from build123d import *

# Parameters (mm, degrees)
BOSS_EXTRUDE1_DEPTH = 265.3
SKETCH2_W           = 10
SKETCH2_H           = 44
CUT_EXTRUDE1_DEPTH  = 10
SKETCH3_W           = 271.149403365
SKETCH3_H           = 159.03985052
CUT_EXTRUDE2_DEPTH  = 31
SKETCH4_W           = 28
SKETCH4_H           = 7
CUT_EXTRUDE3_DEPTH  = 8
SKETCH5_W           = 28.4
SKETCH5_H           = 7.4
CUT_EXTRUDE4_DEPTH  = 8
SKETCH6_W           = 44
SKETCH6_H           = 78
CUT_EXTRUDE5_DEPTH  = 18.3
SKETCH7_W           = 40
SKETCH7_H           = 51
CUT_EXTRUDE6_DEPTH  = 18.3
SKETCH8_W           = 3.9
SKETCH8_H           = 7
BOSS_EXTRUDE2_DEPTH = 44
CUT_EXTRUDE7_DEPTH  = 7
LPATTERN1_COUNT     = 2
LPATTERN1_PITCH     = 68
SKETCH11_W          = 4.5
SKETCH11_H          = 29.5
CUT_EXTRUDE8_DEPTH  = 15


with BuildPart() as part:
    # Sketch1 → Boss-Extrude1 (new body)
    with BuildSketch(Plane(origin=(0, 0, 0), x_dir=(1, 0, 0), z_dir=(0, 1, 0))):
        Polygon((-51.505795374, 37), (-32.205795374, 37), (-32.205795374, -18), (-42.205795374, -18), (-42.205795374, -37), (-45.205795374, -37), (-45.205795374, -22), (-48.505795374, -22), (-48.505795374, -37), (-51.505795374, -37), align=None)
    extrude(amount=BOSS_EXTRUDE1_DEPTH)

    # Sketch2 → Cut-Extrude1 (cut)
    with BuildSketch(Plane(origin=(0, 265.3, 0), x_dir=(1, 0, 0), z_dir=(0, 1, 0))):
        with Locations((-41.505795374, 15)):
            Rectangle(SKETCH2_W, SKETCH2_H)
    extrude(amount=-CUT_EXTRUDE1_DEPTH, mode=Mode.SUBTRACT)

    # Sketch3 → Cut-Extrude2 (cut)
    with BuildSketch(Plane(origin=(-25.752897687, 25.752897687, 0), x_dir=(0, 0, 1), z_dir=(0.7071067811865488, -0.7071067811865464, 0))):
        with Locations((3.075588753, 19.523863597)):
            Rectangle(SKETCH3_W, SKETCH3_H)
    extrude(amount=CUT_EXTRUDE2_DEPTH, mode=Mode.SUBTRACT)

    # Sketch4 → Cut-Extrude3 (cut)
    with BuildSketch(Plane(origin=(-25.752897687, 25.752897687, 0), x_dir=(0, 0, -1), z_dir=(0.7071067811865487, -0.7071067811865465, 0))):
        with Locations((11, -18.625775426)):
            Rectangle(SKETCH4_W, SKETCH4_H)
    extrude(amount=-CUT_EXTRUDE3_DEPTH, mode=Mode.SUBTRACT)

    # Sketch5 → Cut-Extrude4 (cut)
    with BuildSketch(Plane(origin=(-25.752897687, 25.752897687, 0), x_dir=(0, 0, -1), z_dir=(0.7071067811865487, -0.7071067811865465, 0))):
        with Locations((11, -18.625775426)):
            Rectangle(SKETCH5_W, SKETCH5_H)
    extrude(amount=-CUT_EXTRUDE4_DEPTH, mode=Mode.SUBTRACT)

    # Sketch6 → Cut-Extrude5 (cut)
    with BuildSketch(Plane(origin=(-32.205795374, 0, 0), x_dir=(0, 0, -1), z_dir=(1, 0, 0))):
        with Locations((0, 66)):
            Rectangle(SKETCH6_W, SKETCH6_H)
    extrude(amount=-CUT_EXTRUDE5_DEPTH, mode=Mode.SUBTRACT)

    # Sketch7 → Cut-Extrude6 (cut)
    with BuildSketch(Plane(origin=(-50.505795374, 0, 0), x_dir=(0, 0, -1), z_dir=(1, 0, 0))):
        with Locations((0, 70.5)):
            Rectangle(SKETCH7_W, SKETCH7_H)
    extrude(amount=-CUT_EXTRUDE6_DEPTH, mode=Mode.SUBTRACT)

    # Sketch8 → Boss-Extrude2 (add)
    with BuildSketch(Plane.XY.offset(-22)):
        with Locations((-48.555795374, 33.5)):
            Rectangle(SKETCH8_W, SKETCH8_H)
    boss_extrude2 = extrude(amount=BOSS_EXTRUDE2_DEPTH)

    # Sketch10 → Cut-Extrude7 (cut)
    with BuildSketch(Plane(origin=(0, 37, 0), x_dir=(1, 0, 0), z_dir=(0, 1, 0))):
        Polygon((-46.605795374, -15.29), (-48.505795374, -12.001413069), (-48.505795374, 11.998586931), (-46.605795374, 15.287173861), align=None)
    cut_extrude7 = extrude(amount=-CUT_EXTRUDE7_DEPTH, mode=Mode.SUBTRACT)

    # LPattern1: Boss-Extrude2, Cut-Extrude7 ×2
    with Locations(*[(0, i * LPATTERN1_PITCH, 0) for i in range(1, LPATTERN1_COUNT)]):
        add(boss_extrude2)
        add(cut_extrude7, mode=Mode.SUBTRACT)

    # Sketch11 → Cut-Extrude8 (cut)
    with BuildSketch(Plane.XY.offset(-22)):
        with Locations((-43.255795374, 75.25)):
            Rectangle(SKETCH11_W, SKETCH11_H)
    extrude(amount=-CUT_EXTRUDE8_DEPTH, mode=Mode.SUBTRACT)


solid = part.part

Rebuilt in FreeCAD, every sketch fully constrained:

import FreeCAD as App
import Part
import Sketcher

V = App.Vector

doc = App.newDocument("Part")
body = doc.addObject("PartDesign::Body", "Body")

# Sketch on XZ plane
sketch1 = body.newObject("Sketcher::SketchObject", "Sketch")
sketch1.AttachmentSupport = (doc.getObject("XZ_Plane"), [""])
sketch1.MapMode = "FlatFace"
sketch1.addGeometry([
    Part.LineSegment(V(-32.2, -37, 0), V(-51.5, -37, 0)),  # 0
    Part.LineSegment(V(-51.5, -37, 0), V(-51.5, 37, 0)),  # 1
    Part.LineSegment(V(-51.5, 37, 0), V(-48.5, 37, 0)),  # 2
    Part.LineSegment(V(-48.5, 37, 0), V(-48.5, 22, 0)),  # 3
    Part.LineSegment(V(-48.5, 22, 0), V(-45.2, 22, 0)),  # 4
    Part.LineSegment(V(-45.2, 22, 0), V(-45.2, 37, 0)),  # 5
    Part.LineSegment(V(-45.2, 37, 0), V(-42.2, 37, 0)),  # 6
    Part.LineSegment(V(-42.2, 37, 0), V(-42.2, 18, 0)),  # 7
    Part.LineSegment(V(-42.2, 18, 0), V(-32.2, 18, 0)),  # 8
    Part.LineSegment(V(-32.2, 18, 0), V(-32.2, -37, 0)),  # 9
], False)
sketch1.addConstraint([
    Sketcher.Constraint("Coincident", 0, 2, 1, 1),
    Sketcher.Constraint("Coincident", 1, 2, 2, 1),
    Sketcher.Constraint("Coincident", 2, 2, 3, 1),
    Sketcher.Constraint("Coincident", 3, 2, 4, 1),
    Sketcher.Constraint("Coincident", 4, 2, 5, 1),
    Sketcher.Constraint("Coincident", 5, 2, 6, 1),
    Sketcher.Constraint("Coincident", 6, 2, 7, 1),
    Sketcher.Constraint("Coincident", 7, 2, 8, 1),
    Sketcher.Constraint("Coincident", 8, 2, 9, 1),
    Sketcher.Constraint("Coincident", 9, 2, 0, 1),
    Sketcher.Constraint("Horizontal", 0),
    Sketcher.Constraint("Vertical", 1),
    Sketcher.Constraint("Horizontal", 2),
    Sketcher.Constraint("Vertical", 3),
    Sketcher.Constraint("Horizontal", 4),
    Sketcher.Constraint("Vertical", 5),
    Sketcher.Constraint("Horizontal", 6),
    Sketcher.Constraint("Vertical", 7),
    Sketcher.Constraint("Horizontal", 8),
    Sketcher.Constraint("Vertical", 9),
    Sketcher.Constraint("Horizontal", 2, 2, 5, 2),
    Sketcher.Constraint("Equal", 2, 6),
    Sketcher.Constraint("DistanceX", 2, 1, 2, 2, 3.0),
    Sketcher.Constraint("DistanceX", 8, 1, 8, 2, 10.0),
    Sketcher.Constraint("DistanceY", 1, 1, 1, 2, 74.0),
    Sketcher.Constraint("DistanceY", 3, 2, 3, 1, 15.0),
    Sketcher.Constraint("DistanceY", 7, 2, 7, 1, 19.0),
    Sketcher.Constraint("DistanceX", 0, 2, 0, 1, 19.3),
    Sketcher.Constraint("DistanceY", 0, 2, -1, 1, 37.0),
    Sketcher.Constraint("DistanceX", 0, 2, -1, 1, 51.505795),
])
pad1 = body.newObject("PartDesign::Pad", "Pad")
pad1.Profile = sketch1
pad1.Length = 265.3
pad1.Reversed = True

# Sketch on XZ plane
sketch2 = body.newObject("Sketcher::SketchObject", "Sketch001")
sketch2.AttachmentSupport = (doc.getObject("XZ_Plane"), [""])
sketch2.MapMode = "FlatFace"
sketch2.AttachmentOffset = App.Placement(V(0, 0, -265.3), App.Rotation())
sketch2.addGeometry([
    Part.LineSegment(V(-47, -37, 0), V(-47, 7, 0)),
    Part.LineSegment(V(-47, 7, 0), V(-37, 7, 0)),
    Part.LineSegment(V(-37, 7, 0), V(-37, -37, 0)),
    Part.LineSegment(V(-37, -37, 0), V(-47, -37, 0)),
], False)
sketch2.addConstraint([
    Sketcher.Constraint("Coincident", 0, 2, 1, 1),
    Sketcher.Constraint("Coincident", 1, 2, 2, 1),
    Sketcher.Constraint("Coincident", 2, 2, 3, 1),
    Sketcher.Constraint("Coincident", 3, 2, 0, 1),
    Sketcher.Constraint("Vertical", 0),
    Sketcher.Constraint("Horizontal", 1),
    Sketcher.Constraint("Vertical", 2),
    Sketcher.Constraint("Horizontal", 3),
    Sketcher.Constraint("DistanceX", 1, 1, 1, 2, 10.0),
    Sketcher.Constraint("DistanceY", 0, 1, 0, 2, 44.0),
    Sketcher.Constraint("DistanceY", -1, 1, 0, 2, 7.0),
    Sketcher.Constraint("DistanceX", 0, 2, -1, 1, 46.505795),
])
pocket1 = body.newObject("PartDesign::Pocket", "Pocket")
pocket1.Profile = sketch2
pocket1.Length = 10
pocket1.Reversed = True

# Sketch on an angled plane
sketch3 = body.newObject("Sketcher::SketchObject", "Sketch002")
sketch3.Placement = App.Placement(V(-25.752898, 25.752898, 0), App.Rotation(V(0, 0, 1), V(-0.707106781, -0.707106781, 0), V(0.707106781, -0.707106781, 0), "ZXY"))
sketch3.addGeometry([
    Part.LineSegment(V(-132, 99, 0), V(-132, -60, 0)),
    Part.LineSegment(V(-132, -60, 0), V(139, -60, 0)),
    Part.LineSegment(V(139, -60, 0), V(139, 99, 0)),
    Part.LineSegment(V(139, 99, 0), V(-132, 99, 0)),
], False)
sketch3.addConstraint([
    Sketcher.Constraint("Coincident", 0, 2, 1, 1),
    Sketcher.Constraint("Coincident", 1, 2, 2, 1),
    Sketcher.Constraint("Coincident", 2, 2, 3, 1),
    Sketcher.Constraint("Coincident", 3, 2, 0, 1),
    Sketcher.Constraint("Vertical", 0),
    Sketcher.Constraint("Horizontal", 1),
    Sketcher.Constraint("Vertical", 2),
    Sketcher.Constraint("Horizontal", 3),
    Sketcher.Constraint("DistanceY", 0, 2, 0, 1, 159.03985),
    Sketcher.Constraint("DistanceX", 1, 1, 1, 2, 271.149403),
    Sketcher.Constraint("DistanceY", 0, 2, -1, 1, 59.996062),
    Sketcher.Constraint("DistanceX", -1, 1, 1, 2, 138.65029),
])
pocket2 = body.newObject("PartDesign::Pocket", "Pocket001")
pocket2.Profile = sketch3
pocket2.Length = 31
pocket2.Reversed = True

# Sketch on an angled plane
sketch4 = body.newObject("Sketcher::SketchObject", "Sketch003")
sketch4.Placement = App.Placement(V(-25.752898, 25.752898, 0), App.Rotation(V(0, 0, -1), V(0.707106781, 0.707106781, 0), V(0.707106781, -0.707106781, 0), "ZXY"))
sketch4.addGeometry([
    Part.LineSegment(V(-3, -15, 0), V(-3, -22, 0)),
    Part.LineSegment(V(-3, -22, 0), V(25, -22, 0)),
    Part.LineSegment(V(25, -22, 0), V(25, -15, 0)),
    Part.LineSegment(V(25, -15, 0), V(-3, -15, 0)),
], False)
sketch4.addConstraint([
    Sketcher.Constraint("Coincident", 0, 2, 1, 1),
    Sketcher.Constraint("Coincident", 1, 2, 2, 1),
    Sketcher.Constraint("Coincident", 2, 2, 3, 1),
    Sketcher.Constraint("Coincident", 3, 2, 0, 1),
    Sketcher.Constraint("Vertical", 0),
    Sketcher.Constraint("Horizontal", 1),
    Sketcher.Constraint("Vertical", 2),
    Sketcher.Constraint("Horizontal", 3),
    Sketcher.Constraint("DistanceX", 1, 1, 1, 2, 28.0),
    Sketcher.Constraint("DistanceY", 0, 2, 0, 1, 7.0),
    Sketcher.Constraint("DistanceX", 0, 2, -1, 1, 3.0),
    Sketcher.Constraint("DistanceY", 0, 2, -1, 1, 22.125775),
])
pocket3 = body.newObject("PartDesign::Pocket", "Pocket002")
pocket3.Profile = sketch4
pocket3.Length = 8

# Sketch on an angled plane
sketch5 = body.newObject("Sketcher::SketchObject", "Sketch004")
sketch5.Placement = App.Placement(V(-25.752898, 25.752898, 0), App.Rotation(V(0, 0, -1), V(0.707106781, 0.707106781, 0), V(0.707106781, -0.707106781, 0), "ZXY"))
sketch5.addGeometry([
    Part.LineSegment(V(-3, -15, 0), V(-3, -22, 0)),
    Part.LineSegment(V(-3, -22, 0), V(25, -22, 0)),
    Part.LineSegment(V(25, -22, 0), V(25, -15, 0)),
    Part.LineSegment(V(25, -15, 0), V(-3, -15, 0)),
], False)
sketch5.addConstraint([
    Sketcher.Constraint("Coincident", 0, 2, 1, 1),
    Sketcher.Constraint("Coincident", 1, 2, 2, 1),
    Sketcher.Constraint("Coincident", 2, 2, 3, 1),
    Sketcher.Constraint("Coincident", 3, 2, 0, 1),
    Sketcher.Constraint("Vertical", 0),
    Sketcher.Constraint("Horizontal", 1),
    Sketcher.Constraint("Vertical", 2),
    Sketcher.Constraint("Horizontal", 3),
    Sketcher.Constraint("DistanceX", 1, 1, 1, 2, 28.4),
    Sketcher.Constraint("DistanceY", 0, 2, 0, 1, 7.4),
    Sketcher.Constraint("DistanceX", 0, 2, -1, 1, 3.2),
    Sketcher.Constraint("DistanceY", 0, 2, -1, 1, 22.325775),
])
pocket4 = body.newObject("PartDesign::Pocket", "Pocket003")
pocket4.Profile = sketch5
pocket4.Length = 8

# Sketch on YZ plane
sketch6 = body.newObject("Sketcher::SketchObject", "Sketch005")
sketch6.AttachmentSupport = (doc.getObject("YZ_Plane"), [""])
sketch6.MapMode = "FlatFace"
sketch6.AttachmentOffset = App.Placement(V(0, 0, -32.205795), App.Rotation())
sketch6.addGeometry([
    Part.LineSegment(V(105, 22, 0), V(27, 22, 0)),
    Part.LineSegment(V(27, 22, 0), V(27, -22, 0)),
    Part.LineSegment(V(27, -22, 0), V(105, -22, 0)),
    Part.LineSegment(V(105, -22, 0), V(105, 22, 0)),
], False)
sketch6.addConstraint([
    Sketcher.Constraint("Coincident", 0, 2, 1, 1),
    Sketcher.Constraint("Coincident", 1, 2, 2, 1),
    Sketcher.Constraint("Coincident", 2, 2, 3, 1),
    Sketcher.Constraint("Coincident", 3, 2, 0, 1),
    Sketcher.Constraint("Horizontal", 0),
    Sketcher.Constraint("Vertical", 1),
    Sketcher.Constraint("Horizontal", 2),
    Sketcher.Constraint("Vertical", 3),
    Sketcher.Constraint("DistanceX", 0, 2, 0, 1, 78.0),
    Sketcher.Constraint("DistanceY", 1, 2, 1, 1, 44.0),
    Sketcher.Constraint("DistanceX", -1, 1, 0, 2, 27.0),
    Sketcher.Constraint("DistanceY", -1, 1, 0, 2, 22.0),
])
pocket5 = body.newObject("PartDesign::Pocket", "Pocket004")
pocket5.Profile = sketch6
pocket5.Length = 18.3

# Sketch on YZ plane
sketch7 = body.newObject("Sketcher::SketchObject", "Sketch006")
sketch7.AttachmentSupport = (doc.getObject("YZ_Plane"), [""])
sketch7.MapMode = "FlatFace"
sketch7.AttachmentOffset = App.Placement(V(0, 0, -50.505795), App.Rotation())
sketch7.addGeometry([
    Part.LineSegment(V(96, 20, 0), V(45, 20, 0)),
    Part.LineSegment(V(45, 20, 0), V(45, -20, 0)),
    Part.LineSegment(V(45, -20, 0), V(96, -20, 0)),
    Part.LineSegment(V(96, -20, 0), V(96, 20, 0)),
], False)
sketch7.addConstraint([
    Sketcher.Constraint("Coincident", 0, 2, 1, 1),
    Sketcher.Constraint("Coincident", 1, 2, 2, 1),
    Sketcher.Constraint("Coincident", 2, 2, 3, 1),
    Sketcher.Constraint("Coincident", 3, 2, 0, 1),
    Sketcher.Constraint("Horizontal", 0),
    Sketcher.Constraint("Vertical", 1),
    Sketcher.Constraint("Horizontal", 2),
    Sketcher.Constraint("Vertical", 3),
    Sketcher.Constraint("DistanceX", 0, 2, 0, 1, 51.0),
    Sketcher.Constraint("DistanceY", 1, 2, 1, 1, 40.0),
    Sketcher.Constraint("DistanceX", -1, 1, 0, 2, 45.0),
    Sketcher.Constraint("DistanceY", -1, 1, 0, 2, 20.0),
])
pocket6 = body.newObject("PartDesign::Pocket", "Pocket005")
pocket6.Profile = sketch7
pocket6.Length = 18.3

# Sketch on XY plane
sketch8 = body.newObject("Sketcher::SketchObject", "Sketch007")
sketch8.AttachmentSupport = (doc.getObject("XY_Plane"), [""])
sketch8.MapMode = "FlatFace"
sketch8.AttachmentOffset = App.Placement(V(0, 0, -22), App.Rotation())
sketch8.addGeometry([
    Part.LineSegment(V(-50.5, 37, 0), V(-50.5, 30, 0)),
    Part.LineSegment(V(-50.5, 30, 0), V(-46.6, 30, 0)),
    Part.LineSegment(V(-46.6, 30, 0), V(-46.6, 37, 0)),
    Part.LineSegment(V(-46.6, 37, 0), V(-50.5, 37, 0)),
], False)
sketch8.addConstraint([
    Sketcher.Constraint("Coincident", 0, 2, 1, 1),
    Sketcher.Constraint("Coincident", 1, 2, 2, 1),
    Sketcher.Constraint("Coincident", 2, 2, 3, 1),
    Sketcher.Constraint("Coincident", 3, 2, 0, 1),
    Sketcher.Constraint("Vertical", 0),
    Sketcher.Constraint("Horizontal", 1),
    Sketcher.Constraint("Vertical", 2),
    Sketcher.Constraint("Horizontal", 3),
    Sketcher.Constraint("DistanceY", 0, 2, 0, 1, 7.0),
    Sketcher.Constraint("DistanceX", 1, 1, 1, 2, 3.9),
    Sketcher.Constraint("DistanceY", -1, 1, 0, 2, 30.0),
    Sketcher.Constraint("DistanceX", 0, 2, -1, 1, 50.505795),
])
pad2 = body.newObject("PartDesign::Pad", "Pad001")
pad2.Profile = sketch8
pad2.Length = 44

# Sketch on XZ plane
sketch9 = body.newObject("Sketcher::SketchObject", "Sketch008")
sketch9.AttachmentSupport = (doc.getObject("XZ_Plane"), [""])
sketch9.MapMode = "FlatFace"
sketch9.AttachmentOffset = App.Placement(V(0, 0, -37), App.Rotation())
sketch9.addGeometry([
    Part.LineSegment(V(-48.5, 12, 0), V(-46.6, 15.3, 0)),
    Part.LineSegment(V(-46.6, 15.3, 0), V(-46.6, -15.3, 0)),
    Part.LineSegment(V(-46.6, -15.3, 0), V(-48.5, -12, 0)),
    Part.LineSegment(V(-48.5, -12, 0), V(-48.5, 12, 0)),
], False)
sketch9.addConstraint([
    Sketcher.Constraint("Coincident", 0, 2, 1, 1),
    Sketcher.Constraint("Coincident", 1, 2, 2, 1),
    Sketcher.Constraint("Coincident", 2, 2, 3, 1),
    Sketcher.Constraint("Coincident", 3, 2, 0, 1),
    Sketcher.Constraint("Vertical", 1),
    Sketcher.Constraint("Vertical", 3),
    Sketcher.Constraint("Equal", 0, 2),
    Sketcher.Constraint("DistanceY", 3, 1, 3, 2, 24.0),
    Sketcher.Constraint("DistanceX", 2, 2, 1, 2, 1.9),
    Sketcher.Constraint("DistanceY", -1, 1, 0, 2, 15.29),
    Sketcher.Constraint("Distance", 0, 3.798),
    Sketcher.Constraint("DistanceX", 0, 2, -1, 1, 46.605795),
])
pocket7 = body.newObject("PartDesign::Pocket", "Pocket006")
pocket7.Profile = sketch9
pocket7.Length = 7
pocket7.Reversed = True
doc.recompute()

linearpattern = body.newObject("PartDesign::LinearPattern", "LinearPattern")
linearpattern.Originals = [pad2, pocket7]
linearpattern.Direction = (doc.getObject("Y_Axis"), [""])
linearpattern.Mode = "offset"
linearpattern.Offset = 68
linearpattern.Occurrences = 2
body.Tip = linearpattern

# Sketch on XY plane
sketch10 = body.newObject("Sketcher::SketchObject", "Sketch009")
sketch10.AttachmentSupport = (doc.getObject("XY_Plane"), [""])
sketch10.MapMode = "FlatFace"
sketch10.AttachmentOffset = App.Placement(V(0, 0, -22), App.Rotation())
sketch10.addGeometry([
    Part.LineSegment(V(-45.5, 90, 0), V(-45.5, 60.5, 0)),
    Part.LineSegment(V(-45.5, 60.5, 0), V(-41, 60.5, 0)),
    Part.LineSegment(V(-41, 60.5, 0), V(-41, 90, 0)),
    Part.LineSegment(V(-41, 90, 0), V(-45.5, 90, 0)),
], False)
sketch10.addConstraint([
    Sketcher.Constraint("Coincident", 0, 2, 1, 1),
    Sketcher.Constraint("Coincident", 1, 2, 2, 1),
    Sketcher.Constraint("Coincident", 2, 2, 3, 1),
    Sketcher.Constraint("Coincident", 3, 2, 0, 1),
    Sketcher.Constraint("Vertical", 0),
    Sketcher.Constraint("Horizontal", 1),
    Sketcher.Constraint("Vertical", 2),
    Sketcher.Constraint("Horizontal", 3),
    Sketcher.Constraint("DistanceX", 1, 1, 1, 2, 4.5),
    Sketcher.Constraint("DistanceY", 0, 2, 0, 1, 29.5),
    Sketcher.Constraint("DistanceY", -1, 1, 2, 2, 90.0),
    Sketcher.Constraint("DistanceX", 0, 2, -1, 1, 45.505795),
])
pocket8 = body.newObject("PartDesign::Pocket", "Pocket007")
pocket8.Profile = sketch10
pocket8.Length = 15

doc.recompute()
